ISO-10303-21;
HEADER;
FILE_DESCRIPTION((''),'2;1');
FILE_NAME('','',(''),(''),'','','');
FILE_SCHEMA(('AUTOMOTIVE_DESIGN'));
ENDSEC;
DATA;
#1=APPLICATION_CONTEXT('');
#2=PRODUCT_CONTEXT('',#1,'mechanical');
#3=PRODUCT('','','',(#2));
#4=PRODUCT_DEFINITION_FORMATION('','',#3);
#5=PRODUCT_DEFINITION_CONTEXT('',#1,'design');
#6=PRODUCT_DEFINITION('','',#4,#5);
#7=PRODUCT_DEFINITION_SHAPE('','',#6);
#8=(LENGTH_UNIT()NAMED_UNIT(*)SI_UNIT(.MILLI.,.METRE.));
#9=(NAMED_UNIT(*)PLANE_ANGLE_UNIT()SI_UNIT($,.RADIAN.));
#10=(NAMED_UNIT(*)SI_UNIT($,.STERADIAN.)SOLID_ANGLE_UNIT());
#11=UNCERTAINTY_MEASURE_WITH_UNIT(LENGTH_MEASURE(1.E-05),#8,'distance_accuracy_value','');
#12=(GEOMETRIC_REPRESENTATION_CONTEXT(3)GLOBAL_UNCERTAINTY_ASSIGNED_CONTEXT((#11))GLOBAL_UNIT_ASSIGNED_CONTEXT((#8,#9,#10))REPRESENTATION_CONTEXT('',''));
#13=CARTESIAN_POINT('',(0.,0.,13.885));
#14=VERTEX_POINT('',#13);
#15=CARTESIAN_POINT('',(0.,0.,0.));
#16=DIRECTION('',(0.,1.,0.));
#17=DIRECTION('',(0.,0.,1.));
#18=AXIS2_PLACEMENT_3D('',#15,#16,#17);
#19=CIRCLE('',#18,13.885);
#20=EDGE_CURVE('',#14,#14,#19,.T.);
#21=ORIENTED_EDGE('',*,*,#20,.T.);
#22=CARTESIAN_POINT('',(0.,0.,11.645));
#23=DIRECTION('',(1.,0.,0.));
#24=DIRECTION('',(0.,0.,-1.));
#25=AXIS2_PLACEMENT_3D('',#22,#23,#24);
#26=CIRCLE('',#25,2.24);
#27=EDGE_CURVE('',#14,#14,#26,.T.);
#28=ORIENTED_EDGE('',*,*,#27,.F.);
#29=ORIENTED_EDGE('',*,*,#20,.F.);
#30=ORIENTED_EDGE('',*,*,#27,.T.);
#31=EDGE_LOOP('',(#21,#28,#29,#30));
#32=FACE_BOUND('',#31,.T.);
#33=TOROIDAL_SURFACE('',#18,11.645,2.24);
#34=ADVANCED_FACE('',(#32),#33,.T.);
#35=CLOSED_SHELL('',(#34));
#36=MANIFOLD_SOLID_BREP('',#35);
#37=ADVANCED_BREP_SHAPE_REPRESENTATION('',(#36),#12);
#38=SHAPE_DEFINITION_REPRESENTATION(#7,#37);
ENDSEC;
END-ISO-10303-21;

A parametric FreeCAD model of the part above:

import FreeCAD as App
import Part
import Sketcher
from FreeCAD import Vector

doc = App.newDocument("Part")
body = doc.addObject("PartDesign::Body", "Body")

sketch1 = doc.addObject("Sketcher::SketchObject", "Sketch")
body.addObject(sketch1)
sketch1.AttachmentSupport = (doc.YZ_Plane, [""])
sketch1.MapMode = "FlatFace"
sketch1.addGeometry(Part.Circle(Vector(0, 11.645, 0), Vector(0, 0, 1), 2.24), False)
sketch1.addConstraint([
    Sketcher.Constraint("PointOnObject", 0, 3, -2),
    Sketcher.Constraint("Diameter", 0, 4.48),
    Sketcher.Constraint("DistanceY", -1, 1, 0, 3, 11.645),
])

sketch2 = doc.addObject("Sketcher::SketchObject", "Sketch001")
body.addObject(sketch2)
sketch2.AttachmentSupport = (doc.XZ_Plane, [""])
sketch2.MapMode = "FlatFace"
sketch2.addGeometry(Part.Circle(Vector(0, 0, 0), Vector(0, 0, 1), 11.645), False)
sketch2.addConstraint([
    Sketcher.Constraint("Coincident", 0, 3, -1, 1),
    Sketcher.Constraint("Diameter", 0, 23.29),
])
doc.recompute()

additivepipe = doc.addObject("PartDesign::AdditivePipe", "AdditivePipe")
body.addObject(additivepipe)
additivepipe.Profile = sketch1
additivepipe.Spine = (sketch2, ["Edge1"])

doc.recompute()
